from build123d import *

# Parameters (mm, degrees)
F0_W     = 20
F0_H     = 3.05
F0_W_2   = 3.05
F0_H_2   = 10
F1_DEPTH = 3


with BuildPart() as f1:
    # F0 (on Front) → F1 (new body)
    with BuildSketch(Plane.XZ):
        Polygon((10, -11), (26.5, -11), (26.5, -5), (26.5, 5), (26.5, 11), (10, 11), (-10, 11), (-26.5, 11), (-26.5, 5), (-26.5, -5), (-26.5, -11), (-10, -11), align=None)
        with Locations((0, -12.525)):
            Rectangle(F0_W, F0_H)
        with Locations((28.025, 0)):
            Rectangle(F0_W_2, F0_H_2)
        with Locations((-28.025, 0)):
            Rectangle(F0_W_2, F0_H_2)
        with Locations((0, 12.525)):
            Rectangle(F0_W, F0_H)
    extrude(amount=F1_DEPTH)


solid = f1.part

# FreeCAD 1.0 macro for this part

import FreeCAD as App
import Part
import Sketcher
from FreeCAD import Vector
Q = App.Units.Quantity

doc = App.newDocument("Part")
body = doc.addObject("PartDesign::Body", "Body")

sketch1 = body.newObject("Sketcher::SketchObject", "Sketch")
sketch1.AttachmentSupport = (doc.getObject("XZ_Plane"), [""])
sketch1.MapMode = "FlatFace"
sketch1.addGeometry([
    Part.LineSegment(Vector(26.5, -11, 0), Vector(26.5, -5, 0)),
    Part.LineSegment(Vector(26.5, -5, 0), Vector(29.55, -5, 0)),
    Part.LineSegment(Vector(29.55, -5, 0), Vector(29.55, 5, 0)),
    Part.LineSegment(Vector(29.55, 5, 0), Vector(26.5, 5, 0)),
    Part.LineSegment(Vector(26.5, 5, 0), Vector(26.5, 11, 0)),
    Part.LineSegment(Vector(26.5, 11, 0), Vector(10, 11, 0)),
    Part.LineSegment(Vector(10, 11, 0), Vector(10, 14.05, 0)),
    Part.LineSegment(Vector(10, 14.05, 0), Vector(-10, 14.05, 0)),
    Part.LineSegment(Vector(-10, 14.05, 0), Vector(-10, 11, 0)),
    Part.LineSegment(Vector(-10, 11, 0), Vector(-26.5, 11, 0)),
    Part.LineSegment(Vector(-26.5, 11, 0), Vector(-26.5, 5, 0)),
    Part.LineSegment(Vector(-26.5, 5, 0), Vector(-29.55, 5, 0)),
    Part.LineSegment(Vector(-29.55, 5, 0), Vector(-29.55, -5, 0)),
    Part.LineSegment(Vector(-29.55, -5, 0), Vector(-26.5, -5, 0)),
    Part.LineSegment(Vector(-26.5, -5, 0), Vector(-26.5, -11, 0)),
    Part.LineSegment(Vector(-26.5, -11, 0), Vector(-10, -11, 0)),
    Part.LineSegment(Vector(-10, -11, 0), Vector(-10, -14.05, 0)),
    Part.LineSegment(Vector(-10, -14.05, 0), Vector(10, -14.05, 0)),
    Part.LineSegment(Vector(10, -14.05, 0), Vector(10, -11, 0)),
    Part.LineSegment(Vector(10, -11, 0), Vector(26.5, -11, 0)),
], False)
sketch1.addConstraint([
    Sketcher.Constraint("Coincident", 0, 2, 1, 1),
    Sketcher.Constraint("Coincident", 1, 2, 2, 1),
    Sketcher.Constraint("Coincident", 2, 2, 3, 1),
    Sketcher.Constraint("Coincident", 3, 2, 4, 1),
    Sketcher.Constraint("Coincident", 4, 2, 5, 1),
    Sketcher.Constraint("Coincident", 5, 2, 6, 1),
    Sketcher.Constraint("Coincident", 6, 2, 7, 1),
    Sketcher.Constraint("Coincident", 7, 2, 8, 1),
    Sketcher.Constraint("Coincident", 8, 2, 9, 1),
    Sketcher.Constraint("Coincident", 9, 2, 10, 1),
    Sketcher.Constraint("Coincident", 10, 2, 11, 1),
    Sketcher.Constraint("Coincident", 11, 2, 12, 1),
    Sketcher.Constraint("Coincident", 12, 2, 13, 1),
    Sketcher.Constraint("Coincident", 13, 2, 14, 1),
    Sketcher.Constraint("Coincident", 14, 2, 15, 1),
    Sketcher.Constraint("Coincident", 15, 2, 16, 1),
    Sketcher.Constraint("Coincident", 16, 2, 17, 1),
    Sketcher.Constraint("Coincident", 17, 2, 18, 1),
    Sketcher.Constraint("Coincident", 18, 2, 19, 1),
    Sketcher.Constraint("Coincident", 19, 2, 0, 1),
    Sketcher.Constraint("Vertical", 0),
    Sketcher.Constraint("Horizontal", 1),
    Sketcher.Constraint("Vertical", 2),
    Sketcher.Constraint("Horizontal", 3),
    Sketcher.Constraint("Vertical", 4),
    Sketcher.Constraint("Horizontal", 5),
    Sketcher.Constraint("Vertical", 6),
    Sketcher.Constraint("Horizontal", 7),
    Sketcher.Constraint("Vertical", 8),
    Sketcher.Constraint("Horizontal", 9),
    Sketcher.Constraint("Vertical", 10),
    Sketcher.Constraint("Horizontal", 11),
    Sketcher.Constraint("Vertical", 12),
    Sketcher.Constraint("Horizontal", 13),
    Sketcher.Constraint("Vertical", 14),
    Sketcher.Constraint("Horizontal", 15),
    Sketcher.Constraint("Vertical", 16),
    Sketcher.Constraint("Horizontal", 17),
    Sketcher.Constraint("Vertical", 18),
    Sketcher.Constraint("Horizontal", 19),
    Sketcher.Constraint("Symmetric", 0, 2, 10, 2, -1, 1),
    Sketcher.Constraint("Symmetric", 2, 2, 12, 2, -1, 1),
    Sketcher.Constraint("Symmetric", 4, 2, 14, 2, -1, 1),
    Sketcher.Constraint("Symmetric", 6, 2, 16, 2, -1, 1),
    Sketcher.Constraint("Symmetric", 8, 2, 18, 2, -1, 1),
    Sketcher.Constraint("Symmetric", 5, 2, 8, 2, -2),
    Sketcher.Constraint("Symmetric", 3, 2, 10, 2, -2),
    Sketcher.Constraint("Equal", 13, 6),
    Sketcher.Constraint("DistanceX", 7, 2, 7, 1, Q("20 mm")),
    Sketcher.Constraint("DistanceY", 0, 1, 0, 2, Q("6 mm")),
    Sketcher.Constraint("DistanceY", 2, 1, 2, 2, Q("10 mm")),
    Sketcher.Constraint("DistanceX", 5, 2, 5, 1, Q("16.5 mm")),
    Sketcher.Constraint("DistanceX", 1, 1, 1, 2, Q("3.05 mm")),
])
pad1 = body.newObject("PartDesign::Pad", "Pad")
pad1.Profile = sketch1
pad1.Length = 3

doc.recompute()
